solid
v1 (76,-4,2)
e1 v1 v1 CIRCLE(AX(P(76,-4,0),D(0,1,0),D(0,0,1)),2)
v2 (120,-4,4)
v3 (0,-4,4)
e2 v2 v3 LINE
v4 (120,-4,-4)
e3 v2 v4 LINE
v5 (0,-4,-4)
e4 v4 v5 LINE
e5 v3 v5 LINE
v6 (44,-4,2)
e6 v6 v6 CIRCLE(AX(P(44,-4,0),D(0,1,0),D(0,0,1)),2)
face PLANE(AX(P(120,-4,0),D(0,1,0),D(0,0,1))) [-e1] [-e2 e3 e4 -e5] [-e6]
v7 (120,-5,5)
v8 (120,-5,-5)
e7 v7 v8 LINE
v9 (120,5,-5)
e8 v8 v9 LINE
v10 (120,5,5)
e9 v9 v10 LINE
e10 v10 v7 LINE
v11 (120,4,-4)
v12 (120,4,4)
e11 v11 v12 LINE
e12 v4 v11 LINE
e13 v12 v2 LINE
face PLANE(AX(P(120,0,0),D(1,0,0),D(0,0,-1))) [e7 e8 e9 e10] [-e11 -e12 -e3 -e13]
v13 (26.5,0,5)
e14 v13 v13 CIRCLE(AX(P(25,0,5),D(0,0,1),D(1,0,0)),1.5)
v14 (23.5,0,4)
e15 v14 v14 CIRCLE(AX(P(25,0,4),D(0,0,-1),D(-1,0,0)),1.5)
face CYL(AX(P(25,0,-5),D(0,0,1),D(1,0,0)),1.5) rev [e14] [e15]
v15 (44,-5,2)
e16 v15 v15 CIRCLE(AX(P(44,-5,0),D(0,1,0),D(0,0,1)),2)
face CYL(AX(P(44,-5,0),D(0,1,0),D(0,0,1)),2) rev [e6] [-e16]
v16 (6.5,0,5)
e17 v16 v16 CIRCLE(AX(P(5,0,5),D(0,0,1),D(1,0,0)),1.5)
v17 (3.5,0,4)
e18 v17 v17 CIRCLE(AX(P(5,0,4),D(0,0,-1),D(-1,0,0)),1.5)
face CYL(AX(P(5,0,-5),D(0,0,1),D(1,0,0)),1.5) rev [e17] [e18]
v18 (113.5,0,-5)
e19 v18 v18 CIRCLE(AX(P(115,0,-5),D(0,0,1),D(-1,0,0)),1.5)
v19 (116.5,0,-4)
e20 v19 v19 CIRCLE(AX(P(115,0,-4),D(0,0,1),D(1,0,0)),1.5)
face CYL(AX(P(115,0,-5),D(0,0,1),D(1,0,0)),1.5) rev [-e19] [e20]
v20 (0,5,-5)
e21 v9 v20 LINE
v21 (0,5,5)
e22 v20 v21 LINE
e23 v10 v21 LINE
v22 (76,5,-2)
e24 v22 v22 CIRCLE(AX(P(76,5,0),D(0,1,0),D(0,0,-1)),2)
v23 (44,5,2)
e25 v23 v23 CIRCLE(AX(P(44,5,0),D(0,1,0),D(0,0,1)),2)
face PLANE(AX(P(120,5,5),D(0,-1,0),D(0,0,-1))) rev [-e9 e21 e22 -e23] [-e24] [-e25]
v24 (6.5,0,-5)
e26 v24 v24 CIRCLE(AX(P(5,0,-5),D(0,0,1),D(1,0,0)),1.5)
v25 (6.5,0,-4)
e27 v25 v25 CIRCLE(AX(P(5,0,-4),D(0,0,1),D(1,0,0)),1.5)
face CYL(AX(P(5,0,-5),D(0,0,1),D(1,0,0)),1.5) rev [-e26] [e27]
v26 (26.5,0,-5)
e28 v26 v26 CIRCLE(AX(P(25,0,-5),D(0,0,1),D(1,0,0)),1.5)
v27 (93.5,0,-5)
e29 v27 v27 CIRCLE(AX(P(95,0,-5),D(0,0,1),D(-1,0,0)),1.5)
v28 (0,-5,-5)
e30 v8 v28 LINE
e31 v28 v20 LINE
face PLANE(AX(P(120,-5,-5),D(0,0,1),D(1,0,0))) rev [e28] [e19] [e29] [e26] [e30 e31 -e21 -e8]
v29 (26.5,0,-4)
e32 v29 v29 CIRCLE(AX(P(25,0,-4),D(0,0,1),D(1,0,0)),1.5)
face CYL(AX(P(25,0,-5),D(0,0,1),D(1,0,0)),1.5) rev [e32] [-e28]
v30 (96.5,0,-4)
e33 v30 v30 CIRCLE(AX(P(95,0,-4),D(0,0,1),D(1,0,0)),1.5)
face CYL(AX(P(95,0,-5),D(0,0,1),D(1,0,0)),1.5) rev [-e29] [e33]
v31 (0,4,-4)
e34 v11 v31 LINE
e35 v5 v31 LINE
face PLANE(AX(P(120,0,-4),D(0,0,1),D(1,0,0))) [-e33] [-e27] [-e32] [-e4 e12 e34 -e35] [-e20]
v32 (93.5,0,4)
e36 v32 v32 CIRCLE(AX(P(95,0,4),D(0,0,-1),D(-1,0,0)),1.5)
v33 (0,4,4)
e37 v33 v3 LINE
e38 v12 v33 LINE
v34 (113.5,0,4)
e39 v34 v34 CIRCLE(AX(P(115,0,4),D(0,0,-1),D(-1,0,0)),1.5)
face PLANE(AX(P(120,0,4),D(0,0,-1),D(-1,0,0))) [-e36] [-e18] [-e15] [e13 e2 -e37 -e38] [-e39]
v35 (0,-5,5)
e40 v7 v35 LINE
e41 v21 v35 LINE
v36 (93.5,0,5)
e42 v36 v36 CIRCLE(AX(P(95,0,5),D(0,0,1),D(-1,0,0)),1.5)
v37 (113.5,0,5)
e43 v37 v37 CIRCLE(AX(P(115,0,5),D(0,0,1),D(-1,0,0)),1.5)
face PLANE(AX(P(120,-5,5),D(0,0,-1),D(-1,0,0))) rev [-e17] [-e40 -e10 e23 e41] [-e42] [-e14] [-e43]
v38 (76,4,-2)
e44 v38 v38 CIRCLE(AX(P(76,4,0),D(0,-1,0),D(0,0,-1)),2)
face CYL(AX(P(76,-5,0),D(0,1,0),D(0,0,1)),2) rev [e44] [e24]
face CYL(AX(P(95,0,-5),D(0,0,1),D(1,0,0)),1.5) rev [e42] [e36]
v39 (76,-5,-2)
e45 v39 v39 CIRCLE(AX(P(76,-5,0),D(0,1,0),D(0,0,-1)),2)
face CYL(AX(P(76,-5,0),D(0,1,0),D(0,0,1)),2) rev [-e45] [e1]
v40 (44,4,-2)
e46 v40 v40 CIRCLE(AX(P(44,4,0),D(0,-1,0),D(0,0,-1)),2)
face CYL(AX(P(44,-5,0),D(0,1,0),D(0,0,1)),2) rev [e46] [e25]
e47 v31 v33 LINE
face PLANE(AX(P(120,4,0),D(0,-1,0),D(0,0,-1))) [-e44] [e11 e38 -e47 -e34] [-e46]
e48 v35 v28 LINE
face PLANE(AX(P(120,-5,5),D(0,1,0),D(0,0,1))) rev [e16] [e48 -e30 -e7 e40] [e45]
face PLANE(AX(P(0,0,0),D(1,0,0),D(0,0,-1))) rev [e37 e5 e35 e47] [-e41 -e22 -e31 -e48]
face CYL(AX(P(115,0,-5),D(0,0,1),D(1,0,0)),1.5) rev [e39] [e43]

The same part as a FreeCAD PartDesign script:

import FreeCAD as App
import Part
import Sketcher
Q = App.Units.Quantity


def add_polygon(sketch, points):
    """Adds a closed chain of lines whose ends are joined by coincident constraints."""
    first, n = sketch.GeometryCount, len(points)
    for a, b in zip(points, points[1:] + points[:1]):
        sketch.addGeometry(Part.LineSegment(App.Vector(*a, 0), App.Vector(*b, 0)), False)
    for i in range(n):
        sketch.addConstraint(Sketcher.Constraint("Coincident", first + i, 2, first + (i + 1) % n, 1))

doc = App.newDocument("Part")
body = doc.addObject("PartDesign::Body", "Body")

# Sketch on YZ plane
sketch1 = body.newObject("Sketcher::SketchObject", "Sketch")
sketch1.AttachmentSupport = (doc.getObject("YZ_Plane"), [""])
sketch1.MapMode = "FlatFace"
add_polygon(sketch1, [(5, 5), (-5, 5), (-5, -5), (5, -5)])  # lines 0-3
add_polygon(sketch1, [(-4, -4), (-4, 4), (4, 4), (4, -4)])  # lines 4-7
sketch1.addConstraint([
    Sketcher.Constraint("Horizontal", 0),
    Sketcher.Constraint("Vertical", 1),
    Sketcher.Constraint("Horizontal", 2),
    Sketcher.Constraint("Vertical", 3),
    Sketcher.Constraint("Vertical", 4),
    Sketcher.Constraint("Horizontal", 5),
    Sketcher.Constraint("Vertical", 6),
    Sketcher.Constraint("Horizontal", 7),
    Sketcher.Constraint("Symmetric", 0, 2, 2, 2, -1, 1),
    Sketcher.Constraint("Symmetric", 4, 2, 6, 2, -1, 1),
    Sketcher.Constraint("Equal", 2, 1),
    Sketcher.Constraint("Equal", 7, 4),
    Sketcher.Constraint("DistanceX", 0, 2, 0, 1, Q("10 mm")),
    Sketcher.Constraint("DistanceX", 5, 1, 5, 2, Q("8 mm")),
])
pad1 = body.newObject("PartDesign::Pad", "Pad")
pad1.Profile = sketch1
pad1.Length = 120

# Sketch on XZ plane
sketch2 = body.newObject("Sketcher::SketchObject", "Sketch001")
sketch2.AttachmentSupport = (doc.getObject("XZ_Plane"), [""])
sketch2.MapMode = "FlatFace"
sketch2.AttachmentOffset = App.Placement(App.Vector(0, 0, -5), App.Rotation())
sketch2.addGeometry([
    Part.Circle(App.Vector(44, 0, 0), App.Vector(0, 0, 1), 2),
    Part.Circle(App.Vector(76, 0, 0), App.Vector(0, 0, 1), 2),
], False)
sketch2.addConstraint([
    Sketcher.Constraint("Equal", 0, 1),
    Sketcher.Constraint("PointOnObject", 0, 3, -1),
    Sketcher.Constraint("PointOnObject", 1, 3, -1),
    Sketcher.Constraint("Diameter", 0, Q("4 mm")),
    Sketcher.Constraint("DistanceX", -1, 1, 0, 3, Q("44 mm")),
    Sketcher.Constraint("DistanceX", -1, 1, 1, 3, Q("76 mm")),
])
pocket1 = body.newObject("PartDesign::Pocket", "Pocket")
pocket1.Profile = sketch2
pocket1.Type = "ThroughAll"
pocket1.Reversed = True

# Sketch on XY plane
sketch3 = body.newObject("Sketcher::SketchObject", "Sketch002")
sketch3.AttachmentSupport = (doc.getObject("XY_Plane"), [""])
sketch3.MapMode = "FlatFace"
sketch3.AttachmentOffset = App.Placement(App.Vector(0, 0, 5), App.Rotation())
sketch3.addGeometry([
    Part.Circle(App.Vector(5, 0, 0), App.Vector(0, 0, 1), 1.5),
    Part.Circle(App.Vector(115, 0, 0), App.Vector(0, 0, 1), 1.5),
    Part.Circle(App.Vector(25, 0, 0), App.Vector(0, 0, 1), 1.5),
    Part.Circle(App.Vector(95, 0, 0), App.Vector(0, 0, 1), 1.5),
], False)
sketch3.addConstraint([
    Sketcher.Constraint("Equal", 0, 1),
    Sketcher.Constraint("Equal", 1, 2),
    Sketcher.Constraint("Equal", 2, 3),
    Sketcher.Constraint("PointOnObject", 0, 3, -1),
    Sketcher.Constraint("PointOnObject", 1, 3, -1),
    Sketcher.Constraint("PointOnObject", 2, 3, -1),
    Sketcher.Constraint("PointOnObject", 3, 3, -1),
    Sketcher.Constraint("Diameter", 0, Q("3 mm")),
    Sketcher.Constraint("DistanceX", -1, 1, 0, 3, Q("5 mm")),
    Sketcher.Constraint("DistanceX", -1, 1, 1, 3, Q("115 mm")),
    Sketcher.Constraint("DistanceX", -1, 1, 2, 3, Q("25 mm")),
    Sketcher.Constraint("DistanceX", -1, 1, 3, 3, Q("95 mm")),
])
pocket2 = body.newObject("PartDesign::Pocket", "Pocket001")
pocket2.Profile = sketch3
pocket2.Type = "ThroughAll"

doc.recompute()
